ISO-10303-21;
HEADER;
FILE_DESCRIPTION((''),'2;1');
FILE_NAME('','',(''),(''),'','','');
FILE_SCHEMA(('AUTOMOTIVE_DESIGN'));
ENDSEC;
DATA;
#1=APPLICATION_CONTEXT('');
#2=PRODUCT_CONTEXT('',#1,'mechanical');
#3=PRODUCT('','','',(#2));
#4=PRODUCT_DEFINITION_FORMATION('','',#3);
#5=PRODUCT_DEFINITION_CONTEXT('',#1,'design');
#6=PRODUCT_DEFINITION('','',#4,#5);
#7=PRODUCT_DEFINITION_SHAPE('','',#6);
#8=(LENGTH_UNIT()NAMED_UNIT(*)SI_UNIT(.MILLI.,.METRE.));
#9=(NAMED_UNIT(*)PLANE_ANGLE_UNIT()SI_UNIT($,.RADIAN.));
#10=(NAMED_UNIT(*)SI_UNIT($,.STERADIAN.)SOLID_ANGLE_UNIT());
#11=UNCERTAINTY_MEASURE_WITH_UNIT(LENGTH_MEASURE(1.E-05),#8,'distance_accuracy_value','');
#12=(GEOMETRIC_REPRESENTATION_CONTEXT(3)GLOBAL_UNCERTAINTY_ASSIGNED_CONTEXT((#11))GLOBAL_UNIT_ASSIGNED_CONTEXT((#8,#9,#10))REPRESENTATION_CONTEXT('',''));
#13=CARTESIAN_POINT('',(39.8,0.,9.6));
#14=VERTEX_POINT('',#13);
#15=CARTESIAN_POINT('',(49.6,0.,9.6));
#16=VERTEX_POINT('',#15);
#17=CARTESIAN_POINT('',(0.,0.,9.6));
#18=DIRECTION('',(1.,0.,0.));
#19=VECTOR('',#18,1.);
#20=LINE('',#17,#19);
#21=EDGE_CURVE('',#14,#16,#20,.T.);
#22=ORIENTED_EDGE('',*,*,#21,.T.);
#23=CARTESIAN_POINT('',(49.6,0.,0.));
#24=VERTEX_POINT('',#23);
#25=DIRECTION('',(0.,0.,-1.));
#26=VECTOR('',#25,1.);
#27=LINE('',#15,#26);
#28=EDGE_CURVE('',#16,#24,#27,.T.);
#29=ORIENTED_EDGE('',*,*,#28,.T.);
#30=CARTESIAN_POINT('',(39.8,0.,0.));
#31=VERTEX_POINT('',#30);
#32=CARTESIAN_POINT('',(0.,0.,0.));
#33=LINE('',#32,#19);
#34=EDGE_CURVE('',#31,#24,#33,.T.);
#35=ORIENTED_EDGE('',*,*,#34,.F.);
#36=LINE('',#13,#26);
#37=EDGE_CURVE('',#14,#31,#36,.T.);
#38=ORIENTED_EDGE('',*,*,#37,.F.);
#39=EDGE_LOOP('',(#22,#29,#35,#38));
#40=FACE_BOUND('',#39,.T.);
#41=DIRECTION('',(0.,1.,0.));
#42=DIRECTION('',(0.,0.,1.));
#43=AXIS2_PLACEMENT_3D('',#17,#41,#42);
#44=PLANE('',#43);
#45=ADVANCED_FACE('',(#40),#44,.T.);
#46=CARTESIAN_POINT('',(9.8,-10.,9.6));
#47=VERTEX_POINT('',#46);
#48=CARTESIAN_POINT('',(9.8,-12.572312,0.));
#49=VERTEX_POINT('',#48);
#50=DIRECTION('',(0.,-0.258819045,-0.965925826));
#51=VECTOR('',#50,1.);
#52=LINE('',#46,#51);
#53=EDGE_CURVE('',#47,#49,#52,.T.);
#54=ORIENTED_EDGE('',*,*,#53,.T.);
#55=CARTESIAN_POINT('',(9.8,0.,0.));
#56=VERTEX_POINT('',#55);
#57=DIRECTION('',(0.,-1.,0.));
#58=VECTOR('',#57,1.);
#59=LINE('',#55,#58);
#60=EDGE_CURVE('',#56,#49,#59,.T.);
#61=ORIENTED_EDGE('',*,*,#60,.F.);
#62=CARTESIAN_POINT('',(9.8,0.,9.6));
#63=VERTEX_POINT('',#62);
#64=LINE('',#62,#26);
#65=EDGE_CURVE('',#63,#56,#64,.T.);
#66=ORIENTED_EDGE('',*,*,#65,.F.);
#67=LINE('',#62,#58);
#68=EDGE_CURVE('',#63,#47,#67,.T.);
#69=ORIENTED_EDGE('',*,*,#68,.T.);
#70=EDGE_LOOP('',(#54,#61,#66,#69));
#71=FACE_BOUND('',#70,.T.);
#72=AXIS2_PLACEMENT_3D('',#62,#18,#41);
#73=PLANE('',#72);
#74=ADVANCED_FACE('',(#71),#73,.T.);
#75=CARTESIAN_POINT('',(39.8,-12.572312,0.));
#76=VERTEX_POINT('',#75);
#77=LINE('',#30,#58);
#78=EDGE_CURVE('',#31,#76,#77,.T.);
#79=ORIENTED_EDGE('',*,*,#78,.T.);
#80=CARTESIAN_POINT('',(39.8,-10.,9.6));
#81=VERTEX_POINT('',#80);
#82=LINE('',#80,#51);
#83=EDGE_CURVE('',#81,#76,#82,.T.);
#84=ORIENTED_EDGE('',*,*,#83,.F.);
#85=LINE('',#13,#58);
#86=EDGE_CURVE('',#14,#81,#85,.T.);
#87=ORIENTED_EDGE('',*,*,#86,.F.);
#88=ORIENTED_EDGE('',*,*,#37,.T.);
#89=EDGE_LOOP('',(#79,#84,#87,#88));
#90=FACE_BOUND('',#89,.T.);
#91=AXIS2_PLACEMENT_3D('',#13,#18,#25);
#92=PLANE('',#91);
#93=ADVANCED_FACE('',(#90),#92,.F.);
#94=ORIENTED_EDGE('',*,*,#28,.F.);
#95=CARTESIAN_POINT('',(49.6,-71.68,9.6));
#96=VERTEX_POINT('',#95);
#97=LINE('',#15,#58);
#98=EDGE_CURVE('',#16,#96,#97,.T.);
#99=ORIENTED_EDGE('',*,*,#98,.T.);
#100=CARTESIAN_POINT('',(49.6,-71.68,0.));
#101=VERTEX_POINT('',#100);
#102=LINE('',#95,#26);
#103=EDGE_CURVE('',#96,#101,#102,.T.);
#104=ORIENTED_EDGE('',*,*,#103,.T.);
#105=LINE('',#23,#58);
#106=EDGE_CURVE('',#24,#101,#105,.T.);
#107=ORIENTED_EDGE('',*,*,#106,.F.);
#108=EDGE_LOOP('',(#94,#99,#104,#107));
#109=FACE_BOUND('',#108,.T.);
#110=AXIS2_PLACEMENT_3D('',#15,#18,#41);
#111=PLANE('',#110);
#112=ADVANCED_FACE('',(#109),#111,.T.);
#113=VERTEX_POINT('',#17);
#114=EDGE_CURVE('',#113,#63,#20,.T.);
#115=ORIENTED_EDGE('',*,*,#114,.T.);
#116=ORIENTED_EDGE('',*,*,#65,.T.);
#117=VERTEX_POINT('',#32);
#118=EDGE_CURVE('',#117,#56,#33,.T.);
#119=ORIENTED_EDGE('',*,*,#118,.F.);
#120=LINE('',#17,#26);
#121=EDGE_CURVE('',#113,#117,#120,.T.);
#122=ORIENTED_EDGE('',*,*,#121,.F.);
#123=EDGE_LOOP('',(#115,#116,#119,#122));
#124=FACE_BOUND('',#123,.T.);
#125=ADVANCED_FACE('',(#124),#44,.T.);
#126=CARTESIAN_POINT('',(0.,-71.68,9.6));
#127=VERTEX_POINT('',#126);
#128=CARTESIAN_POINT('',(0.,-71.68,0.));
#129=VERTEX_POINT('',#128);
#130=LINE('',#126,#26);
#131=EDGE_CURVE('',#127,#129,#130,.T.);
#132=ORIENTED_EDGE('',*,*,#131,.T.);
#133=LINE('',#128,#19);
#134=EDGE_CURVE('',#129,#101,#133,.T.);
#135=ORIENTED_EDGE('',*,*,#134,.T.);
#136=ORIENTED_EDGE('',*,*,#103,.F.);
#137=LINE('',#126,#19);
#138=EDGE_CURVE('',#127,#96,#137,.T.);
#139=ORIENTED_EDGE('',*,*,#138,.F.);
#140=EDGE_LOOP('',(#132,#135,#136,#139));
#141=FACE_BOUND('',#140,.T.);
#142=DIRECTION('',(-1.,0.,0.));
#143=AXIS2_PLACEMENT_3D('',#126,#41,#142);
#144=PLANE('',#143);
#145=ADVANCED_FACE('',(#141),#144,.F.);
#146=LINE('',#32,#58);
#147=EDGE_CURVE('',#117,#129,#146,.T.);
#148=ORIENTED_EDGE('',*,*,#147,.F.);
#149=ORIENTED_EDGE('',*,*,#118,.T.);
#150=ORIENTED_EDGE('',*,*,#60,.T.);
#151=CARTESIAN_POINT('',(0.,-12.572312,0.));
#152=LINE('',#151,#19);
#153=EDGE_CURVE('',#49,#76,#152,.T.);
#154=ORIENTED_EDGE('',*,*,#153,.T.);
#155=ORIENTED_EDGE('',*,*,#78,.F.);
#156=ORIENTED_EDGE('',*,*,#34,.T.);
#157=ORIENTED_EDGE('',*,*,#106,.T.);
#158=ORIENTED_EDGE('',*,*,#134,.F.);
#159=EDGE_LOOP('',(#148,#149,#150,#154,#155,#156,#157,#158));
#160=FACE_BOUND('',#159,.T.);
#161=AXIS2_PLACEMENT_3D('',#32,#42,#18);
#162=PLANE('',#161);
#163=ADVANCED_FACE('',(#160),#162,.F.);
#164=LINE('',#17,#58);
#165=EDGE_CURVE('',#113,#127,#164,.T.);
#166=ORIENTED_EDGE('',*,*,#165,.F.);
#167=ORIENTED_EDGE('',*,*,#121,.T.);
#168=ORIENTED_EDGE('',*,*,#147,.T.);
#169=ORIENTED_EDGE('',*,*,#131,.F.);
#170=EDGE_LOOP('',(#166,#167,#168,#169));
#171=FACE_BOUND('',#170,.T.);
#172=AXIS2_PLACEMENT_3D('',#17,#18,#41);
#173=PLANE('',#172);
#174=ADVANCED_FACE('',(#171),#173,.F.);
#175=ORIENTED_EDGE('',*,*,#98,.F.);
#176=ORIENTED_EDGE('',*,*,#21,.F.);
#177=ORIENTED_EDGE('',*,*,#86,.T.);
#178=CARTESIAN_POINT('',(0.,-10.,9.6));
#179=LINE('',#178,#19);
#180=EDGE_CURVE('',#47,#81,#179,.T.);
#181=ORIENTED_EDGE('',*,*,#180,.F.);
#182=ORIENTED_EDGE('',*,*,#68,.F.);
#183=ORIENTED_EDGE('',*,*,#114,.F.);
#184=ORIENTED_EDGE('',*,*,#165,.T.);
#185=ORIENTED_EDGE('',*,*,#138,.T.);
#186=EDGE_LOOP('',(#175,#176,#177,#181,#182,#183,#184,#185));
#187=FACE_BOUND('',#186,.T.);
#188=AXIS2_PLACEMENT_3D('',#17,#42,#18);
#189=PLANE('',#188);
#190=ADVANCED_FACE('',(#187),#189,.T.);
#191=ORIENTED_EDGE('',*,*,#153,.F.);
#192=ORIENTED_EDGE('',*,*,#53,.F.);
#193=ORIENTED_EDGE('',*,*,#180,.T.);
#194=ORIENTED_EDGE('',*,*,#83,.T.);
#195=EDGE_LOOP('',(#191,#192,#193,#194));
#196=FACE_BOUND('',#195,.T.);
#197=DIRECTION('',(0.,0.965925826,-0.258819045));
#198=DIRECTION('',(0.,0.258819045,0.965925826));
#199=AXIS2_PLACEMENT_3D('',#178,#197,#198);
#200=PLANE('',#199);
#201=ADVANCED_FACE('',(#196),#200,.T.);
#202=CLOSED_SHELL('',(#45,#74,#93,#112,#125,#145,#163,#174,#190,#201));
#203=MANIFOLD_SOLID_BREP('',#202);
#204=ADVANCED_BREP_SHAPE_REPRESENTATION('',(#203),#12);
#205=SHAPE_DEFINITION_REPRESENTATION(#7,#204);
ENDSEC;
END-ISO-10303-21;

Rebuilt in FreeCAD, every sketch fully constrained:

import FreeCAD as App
import Part
import Sketcher

V = App.Vector


def faces_at(feature, points):
    """Names of the faces that lie closest to the given points."""
    faces = feature.Shape.Faces
    near = lambda p: min(range(len(faces)), key=lambda i: faces[i].distToShape(Part.Vertex(*p))[0])
    return sorted({f"Face{near(p) + 1}" for p in points})

doc = App.newDocument("Part")
body = doc.addObject("PartDesign::Body", "Body")

# Sketch on XY plane
sketch1 = body.newObject("Sketcher::SketchObject", "Sketch")
sketch1.AttachmentSupport = (doc.getObject("XY_Plane"), [""])
sketch1.MapMode = "FlatFace"
sketch1.addGeometry([
    Part.LineSegment(V(10, 0, 0), V(0, 0, 0)),  # 0
    Part.LineSegment(V(0, 0, 0), V(0, -72, 0)),  # 1
    Part.LineSegment(V(0, -72, 0), V(50, -72, 0)),  # 2
    Part.LineSegment(V(50, -72, 0), V(50, 0, 0)),  # 3
    Part.LineSegment(V(50, 0, 0), V(40, 0, 0)),  # 4
    Part.LineSegment(V(40, 0, 0), V(40, -10, 0)),  # 5
    Part.LineSegment(V(40, -10, 0), V(10, -10, 0)),  # 6
    Part.LineSegment(V(10, -10, 0), V(10, 0, 0)),  # 7
], False)
sketch1.addConstraint([
    Sketcher.Constraint("Coincident", 0, 2, 1, 1),
    Sketcher.Constraint("Coincident", 1, 2, 2, 1),
    Sketcher.Constraint("Coincident", 2, 2, 3, 1),
    Sketcher.Constraint("Coincident", 3, 2, 4, 1),
    Sketcher.Constraint("Coincident", 4, 2, 5, 1),
    Sketcher.Constraint("Coincident", 5, 2, 6, 1),
    Sketcher.Constraint("Coincident", 6, 2, 7, 1),
    Sketcher.Constraint("Coincident", 7, 2, 0, 1),
    Sketcher.Constraint("Horizontal", 0),
    Sketcher.Constraint("Vertical", 1),
    Sketcher.Constraint("Horizontal", 2),
    Sketcher.Constraint("Vertical", 3),
    Sketcher.Constraint("Horizontal", 4),
    Sketcher.Constraint("Vertical", 5),
    Sketcher.Constraint("Horizontal", 6),
    Sketcher.Constraint("Vertical", 7),
    Sketcher.Constraint("Coincident", 0, 2, -1, 1),
    Sketcher.Constraint("PointOnObject", 3, 2, -1),
    Sketcher.Constraint("Equal", 0, 4),
    Sketcher.Constraint("DistanceX", 6, 2, 6, 1, 30.0),
    Sketcher.Constraint("DistanceY", 5, 2, 5, 1, 10.0),
    Sketcher.Constraint("DistanceX", 0, 2, 0, 1, 9.8),
    Sketcher.Constraint("DistanceY", 1, 2, 1, 1, 71.68),
])
pad1 = body.newObject("PartDesign::Pad", "Pad")
pad1.Profile = sketch1
pad1.Length = 9.6
doc.recompute()

datumplane = body.newObject("PartDesign::Plane", "DatumPlane")
datumplane.AttachmentSupport = (doc.getObject("XY_Plane"), [""])
datumplane.MapMode = "FlatFace"
datumplane.AttachmentOffset = App.Placement(V(0, 0, 9.6), App.Rotation())
draft = body.newObject("PartDesign::Draft", "Draft")
draft.Base = (pad1, faces_at(pad1, [(24.8, -10, 4.8)]))
draft.NeutralPlane = (datumplane, [""])
draft.Angle = 15
draft.Reversed = True

doc.recompute()
